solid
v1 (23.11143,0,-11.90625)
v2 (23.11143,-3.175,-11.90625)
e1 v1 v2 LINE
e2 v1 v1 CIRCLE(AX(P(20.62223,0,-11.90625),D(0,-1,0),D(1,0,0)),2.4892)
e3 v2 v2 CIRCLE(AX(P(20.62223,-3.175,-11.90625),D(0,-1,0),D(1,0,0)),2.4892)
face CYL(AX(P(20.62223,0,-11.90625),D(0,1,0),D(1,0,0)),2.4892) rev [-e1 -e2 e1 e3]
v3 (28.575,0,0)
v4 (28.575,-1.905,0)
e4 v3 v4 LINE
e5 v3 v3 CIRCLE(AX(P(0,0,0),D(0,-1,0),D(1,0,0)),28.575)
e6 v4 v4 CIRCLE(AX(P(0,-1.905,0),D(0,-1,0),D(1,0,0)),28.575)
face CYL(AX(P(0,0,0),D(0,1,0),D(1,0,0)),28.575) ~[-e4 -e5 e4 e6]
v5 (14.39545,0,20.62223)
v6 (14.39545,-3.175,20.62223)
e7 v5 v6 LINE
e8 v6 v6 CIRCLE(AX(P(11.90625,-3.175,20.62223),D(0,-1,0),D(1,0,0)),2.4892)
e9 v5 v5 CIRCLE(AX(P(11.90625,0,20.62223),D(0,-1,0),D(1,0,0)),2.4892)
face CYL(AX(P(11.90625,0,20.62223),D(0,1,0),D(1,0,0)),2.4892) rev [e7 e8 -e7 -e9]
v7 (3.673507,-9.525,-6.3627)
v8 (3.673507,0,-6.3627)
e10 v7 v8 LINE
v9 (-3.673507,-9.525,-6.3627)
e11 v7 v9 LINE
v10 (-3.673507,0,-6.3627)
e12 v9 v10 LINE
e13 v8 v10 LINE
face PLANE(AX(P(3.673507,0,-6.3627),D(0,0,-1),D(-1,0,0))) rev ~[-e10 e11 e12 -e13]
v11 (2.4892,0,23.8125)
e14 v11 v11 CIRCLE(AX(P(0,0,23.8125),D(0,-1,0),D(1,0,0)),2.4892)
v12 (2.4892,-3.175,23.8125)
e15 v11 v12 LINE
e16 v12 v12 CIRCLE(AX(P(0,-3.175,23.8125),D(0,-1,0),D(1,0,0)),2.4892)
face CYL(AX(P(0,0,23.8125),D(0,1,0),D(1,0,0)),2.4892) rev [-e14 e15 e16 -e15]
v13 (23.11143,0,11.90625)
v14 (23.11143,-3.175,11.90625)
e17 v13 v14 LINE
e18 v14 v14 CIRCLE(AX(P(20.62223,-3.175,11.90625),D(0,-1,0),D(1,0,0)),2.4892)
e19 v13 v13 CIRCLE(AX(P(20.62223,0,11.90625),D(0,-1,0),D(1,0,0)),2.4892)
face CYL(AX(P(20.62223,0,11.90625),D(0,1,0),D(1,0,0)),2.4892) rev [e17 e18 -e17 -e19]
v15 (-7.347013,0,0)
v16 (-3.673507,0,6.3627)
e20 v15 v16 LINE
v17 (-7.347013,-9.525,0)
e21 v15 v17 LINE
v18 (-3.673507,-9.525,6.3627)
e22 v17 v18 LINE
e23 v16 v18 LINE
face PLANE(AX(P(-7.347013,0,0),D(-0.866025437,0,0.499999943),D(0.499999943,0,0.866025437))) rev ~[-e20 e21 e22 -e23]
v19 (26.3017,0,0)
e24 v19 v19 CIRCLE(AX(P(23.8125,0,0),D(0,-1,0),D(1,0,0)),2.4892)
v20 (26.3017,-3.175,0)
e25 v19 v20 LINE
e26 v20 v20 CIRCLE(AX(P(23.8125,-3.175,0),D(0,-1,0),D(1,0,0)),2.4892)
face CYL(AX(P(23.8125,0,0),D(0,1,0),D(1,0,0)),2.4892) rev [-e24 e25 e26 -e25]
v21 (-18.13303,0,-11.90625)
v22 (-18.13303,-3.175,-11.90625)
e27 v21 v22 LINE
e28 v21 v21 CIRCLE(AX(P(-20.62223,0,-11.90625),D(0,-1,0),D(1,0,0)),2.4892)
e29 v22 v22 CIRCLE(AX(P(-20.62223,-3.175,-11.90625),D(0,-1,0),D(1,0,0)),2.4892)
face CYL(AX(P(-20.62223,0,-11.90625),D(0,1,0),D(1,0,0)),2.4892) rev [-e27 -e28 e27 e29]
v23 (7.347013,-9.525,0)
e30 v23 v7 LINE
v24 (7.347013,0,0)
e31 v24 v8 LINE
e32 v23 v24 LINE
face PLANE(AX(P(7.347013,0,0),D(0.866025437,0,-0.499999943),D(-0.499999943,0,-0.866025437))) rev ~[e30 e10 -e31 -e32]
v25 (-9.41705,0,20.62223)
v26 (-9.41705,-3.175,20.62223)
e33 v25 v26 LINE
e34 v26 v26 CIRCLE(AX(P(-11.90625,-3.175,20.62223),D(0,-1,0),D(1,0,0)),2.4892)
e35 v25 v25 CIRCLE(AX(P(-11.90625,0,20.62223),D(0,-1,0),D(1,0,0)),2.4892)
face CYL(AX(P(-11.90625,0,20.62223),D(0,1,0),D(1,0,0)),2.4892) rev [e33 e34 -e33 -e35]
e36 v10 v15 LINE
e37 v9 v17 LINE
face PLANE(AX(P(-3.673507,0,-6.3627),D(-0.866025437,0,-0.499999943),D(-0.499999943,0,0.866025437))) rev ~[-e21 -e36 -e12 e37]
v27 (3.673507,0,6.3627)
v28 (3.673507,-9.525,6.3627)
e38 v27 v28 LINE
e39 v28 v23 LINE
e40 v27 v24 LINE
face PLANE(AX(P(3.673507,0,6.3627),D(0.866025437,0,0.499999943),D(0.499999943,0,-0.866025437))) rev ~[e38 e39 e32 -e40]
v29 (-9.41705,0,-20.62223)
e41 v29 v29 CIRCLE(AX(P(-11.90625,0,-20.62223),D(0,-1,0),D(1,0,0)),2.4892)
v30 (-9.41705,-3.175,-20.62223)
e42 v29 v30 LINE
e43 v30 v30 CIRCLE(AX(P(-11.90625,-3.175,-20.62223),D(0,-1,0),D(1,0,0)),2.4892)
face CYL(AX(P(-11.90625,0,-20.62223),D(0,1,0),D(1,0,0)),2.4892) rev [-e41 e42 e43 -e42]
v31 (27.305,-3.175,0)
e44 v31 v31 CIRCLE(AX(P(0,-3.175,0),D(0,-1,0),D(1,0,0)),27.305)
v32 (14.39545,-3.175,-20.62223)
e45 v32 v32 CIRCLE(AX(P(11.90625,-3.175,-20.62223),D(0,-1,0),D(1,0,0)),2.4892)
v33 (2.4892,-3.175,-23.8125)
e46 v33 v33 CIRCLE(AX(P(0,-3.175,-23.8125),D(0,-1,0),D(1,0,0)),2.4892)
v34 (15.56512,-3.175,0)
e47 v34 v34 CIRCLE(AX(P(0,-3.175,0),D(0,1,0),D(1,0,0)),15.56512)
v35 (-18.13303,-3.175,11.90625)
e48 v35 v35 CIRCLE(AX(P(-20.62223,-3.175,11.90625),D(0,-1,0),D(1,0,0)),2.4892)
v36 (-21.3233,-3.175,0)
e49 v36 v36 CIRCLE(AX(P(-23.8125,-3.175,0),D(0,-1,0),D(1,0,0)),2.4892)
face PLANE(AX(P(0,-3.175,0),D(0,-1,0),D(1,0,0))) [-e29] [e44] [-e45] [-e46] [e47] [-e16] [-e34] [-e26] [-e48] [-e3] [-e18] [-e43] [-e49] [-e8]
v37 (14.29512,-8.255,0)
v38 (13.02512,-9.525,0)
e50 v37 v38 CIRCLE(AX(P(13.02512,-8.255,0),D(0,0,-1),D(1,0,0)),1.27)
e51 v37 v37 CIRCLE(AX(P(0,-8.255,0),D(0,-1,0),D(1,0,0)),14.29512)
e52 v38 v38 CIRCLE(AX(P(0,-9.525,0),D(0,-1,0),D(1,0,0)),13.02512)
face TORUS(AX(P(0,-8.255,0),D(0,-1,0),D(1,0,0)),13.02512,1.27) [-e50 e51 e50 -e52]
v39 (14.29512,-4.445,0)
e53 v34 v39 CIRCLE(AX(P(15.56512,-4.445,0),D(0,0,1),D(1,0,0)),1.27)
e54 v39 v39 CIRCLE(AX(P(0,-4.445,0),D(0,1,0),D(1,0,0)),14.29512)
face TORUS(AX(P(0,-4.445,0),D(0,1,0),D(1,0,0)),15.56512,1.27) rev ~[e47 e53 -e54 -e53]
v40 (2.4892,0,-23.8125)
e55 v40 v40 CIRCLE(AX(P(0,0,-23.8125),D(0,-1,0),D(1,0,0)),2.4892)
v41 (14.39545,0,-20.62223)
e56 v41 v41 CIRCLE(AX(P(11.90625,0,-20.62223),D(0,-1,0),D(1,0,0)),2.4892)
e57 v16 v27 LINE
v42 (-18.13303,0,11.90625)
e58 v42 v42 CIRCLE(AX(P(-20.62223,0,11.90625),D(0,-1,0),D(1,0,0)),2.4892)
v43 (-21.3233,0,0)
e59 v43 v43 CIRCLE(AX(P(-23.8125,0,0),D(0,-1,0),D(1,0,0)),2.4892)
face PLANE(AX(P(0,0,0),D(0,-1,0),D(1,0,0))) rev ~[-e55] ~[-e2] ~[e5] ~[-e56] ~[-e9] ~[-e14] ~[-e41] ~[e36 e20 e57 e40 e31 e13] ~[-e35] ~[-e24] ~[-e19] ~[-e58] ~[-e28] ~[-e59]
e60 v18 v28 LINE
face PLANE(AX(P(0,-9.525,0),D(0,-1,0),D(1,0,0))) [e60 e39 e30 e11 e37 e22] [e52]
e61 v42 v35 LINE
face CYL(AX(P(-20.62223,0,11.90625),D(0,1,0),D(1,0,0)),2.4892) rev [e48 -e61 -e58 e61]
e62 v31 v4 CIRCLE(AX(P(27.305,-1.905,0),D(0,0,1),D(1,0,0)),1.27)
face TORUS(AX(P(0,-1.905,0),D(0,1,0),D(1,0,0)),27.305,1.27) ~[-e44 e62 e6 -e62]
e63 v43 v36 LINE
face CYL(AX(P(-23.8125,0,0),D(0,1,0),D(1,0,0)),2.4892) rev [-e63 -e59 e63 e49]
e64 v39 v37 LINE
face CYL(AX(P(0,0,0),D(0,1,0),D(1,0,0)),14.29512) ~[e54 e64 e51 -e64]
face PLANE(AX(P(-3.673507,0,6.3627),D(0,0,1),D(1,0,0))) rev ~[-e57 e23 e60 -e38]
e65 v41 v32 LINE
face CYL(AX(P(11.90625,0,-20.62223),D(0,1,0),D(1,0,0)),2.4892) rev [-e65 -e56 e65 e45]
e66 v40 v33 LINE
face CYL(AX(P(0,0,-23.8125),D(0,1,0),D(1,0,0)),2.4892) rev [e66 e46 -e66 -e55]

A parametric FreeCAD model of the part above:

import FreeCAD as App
import Part
import Sketcher
from FreeCAD import Vector
Q = App.Units.Quantity


def edges_at(feature, points):
    """Names of the edges that pass closest to the given points."""
    edges = feature.Shape.Edges
    near = lambda p: min(range(len(edges)), key=lambda i: edges[i].distToShape(Part.Vertex(*p))[0])
    return sorted({f"Edge{near(p) + 1}" for p in points})

doc = App.newDocument("Part")
params = doc.addObject("Spreadsheet::Sheet", "Params")
for row, (alias, value) in enumerate([
    ("sketch1_diameter", "2.25 in"),
    ("sketch1_diameter2", "0.196 in"),
    ("pad1_length", "0.125 in"),
    ("pad2_length", "0.375 in"),
    ("fillet_radius", "0.05 in"),
], start=1):
    params.set(f"A{row}", alias)
    params.set(f"B{row}", "=" + value)
    params.setAlias(f"B{row}", alias)

body = doc.addObject("PartDesign::Body", "Body")

# Sketch on XZ plane
sketch1 = doc.addObject("Sketcher::SketchObject", "Sketch")
body.addObject(sketch1)
sketch1.AttachmentSupport = (doc.XZ_Plane, [""])
sketch1.MapMode = "FlatFace"
sketch1.addGeometry([
    Part.Circle(Vector(0, 0, 0), Vector(0, 0, 1), 28.575),  # 0
    Part.Circle(Vector(-11.90625, -20.62223, 0), Vector(0, 0, 1), 2.4892),  # 1
    Part.Circle(Vector(-20.62223, -11.90625, 0), Vector(0, 0, 1), 2.4892),  # 2
    Part.Circle(Vector(0, -23.8125, 0), Vector(0, 0, 1), 2.4892),  # 3
    Part.Circle(Vector(11.90625, -20.62223, 0), Vector(0, 0, 1), 2.4892),  # 4
    Part.Circle(Vector(20.62223, -11.90625, 0), Vector(0, 0, 1), 2.4892),  # 5
    Part.Circle(Vector(-23.8125, 0, 0), Vector(0, 0, 1), 2.4892),  # 6
    Part.Circle(Vector(-20.62223, 11.90625, 0), Vector(0, 0, 1), 2.4892),  # 7
    Part.Circle(Vector(-11.90625, 20.62223, 0), Vector(0, 0, 1), 2.4892),  # 8
    Part.LineSegment(Vector(-3.673507, -6.3627, 0), Vector(-7.347013, 0, 0)),  # 9
    Part.LineSegment(Vector(-7.347013, 0, 0), Vector(-3.673507, 6.3627, 0)),  # 10
    Part.LineSegment(Vector(-3.673507, 6.3627, 0), Vector(3.673507, 6.3627, 0)),  # 11
    Part.LineSegment(Vector(3.673507, 6.3627, 0), Vector(7.347013, 0, 0)),  # 12
    Part.LineSegment(Vector(7.347013, 0, 0), Vector(3.673507, -6.3627, 0)),  # 13
    Part.LineSegment(Vector(3.673507, -6.3627, 0), Vector(-3.673507, -6.3627, 0)),  # 14
    Part.Circle(Vector(23.8125, 0, 0), Vector(0, 0, 1), 2.4892),  # 15
    Part.Circle(Vector(20.62223, 11.90625, 0), Vector(0, 0, 1), 2.4892),  # 16
    Part.Circle(Vector(0, 23.8125, 0), Vector(0, 0, 1), 2.4892),  # 17
    Part.Circle(Vector(11.90625, 20.62223, 0), Vector(0, 0, 1), 2.4892),  # 18
], False)
sketch1.addConstraint([
    Sketcher.Constraint("Coincident", 9, 2, 10, 1),
    Sketcher.Constraint("Coincident", 10, 2, 11, 1),
    Sketcher.Constraint("Coincident", 11, 2, 12, 1),
    Sketcher.Constraint("Coincident", 12, 2, 13, 1),
    Sketcher.Constraint("Coincident", 13, 2, 14, 1),
    Sketcher.Constraint("Coincident", 14, 2, 9, 1),
    Sketcher.Constraint("Horizontal", 11),
    Sketcher.Constraint("Horizontal", 14),
    Sketcher.Constraint("Coincident", 0, 3, -1, 1),
    Sketcher.Constraint("Equal", 1, 2),
    Sketcher.Constraint("Equal", 2, 3),
    Sketcher.Constraint("Equal", 3, 4),
    Sketcher.Constraint("Equal", 4, 5),
    Sketcher.Constraint("Equal", 5, 6),
    Sketcher.Constraint("Equal", 6, 7),
    Sketcher.Constraint("Equal", 7, 8),
    Sketcher.Constraint("Equal", 8, 15),
    Sketcher.Constraint("Equal", 15, 16),
    Sketcher.Constraint("Equal", 16, 17),
    Sketcher.Constraint("Equal", 17, 18),
    Sketcher.Constraint("Symmetric", 5, 3, 7, 3, -1, 1),
    Sketcher.Constraint("Symmetric", 4, 3, 8, 3, -1, 1),
    Sketcher.Constraint("Symmetric", 6, 3, 15, 3, -1, 1),
    Sketcher.Constraint("Symmetric", 2, 3, 16, 3, -1, 1),
    Sketcher.Constraint("Symmetric", 3, 3, 17, 3, -1, 1),
    Sketcher.Constraint("Symmetric", 1, 3, 18, 3, -1, 1),
    Sketcher.Constraint("Symmetric", 9, 2, 12, 2, -1, 1),
    Sketcher.Constraint("Symmetric", 10, 2, 13, 2, -1, 1),
    Sketcher.Constraint("Symmetric", 1, 3, 4, 3, -2),
    Sketcher.Constraint("Symmetric", 2, 3, 5, 3, -2),
    Sketcher.Constraint("PointOnObject", 3, 3, -2),
    Sketcher.Constraint("PointOnObject", 6, 3, -1),
    Sketcher.Constraint("PointOnObject", 9, 2, -1),
    Sketcher.Constraint("Parallel", 9, 12),
    Sketcher.Constraint("Vertical", 11, 2, 13, 2),
    Sketcher.Constraint("Diameter", 0, Q("2.25 in")),
    Sketcher.Constraint("Diameter", 1, Q("0.196 in")),
    Sketcher.Constraint("Angle", 9, Q("119.999996 deg")),
    Sketcher.Constraint("DistanceX", 1, 3, -1, 1, Q("0.46875 in")),
    Sketcher.Constraint("DistanceY", 2, 3, -1, 1, Q("0.46875 in")),
    Sketcher.Constraint("DistanceY", 3, 3, -1, 1, Q("0.9375 in")),
    Sketcher.Constraint("DistanceX", 6, 3, -1, 1, Q("0.9375 in")),
    Sketcher.Constraint("DistanceY", 10, 2, 17, 3, Q("0.687 in")),
    Sketcher.Constraint("DistanceX", 11, 1, 11, 2, Q("7.347014 mm")),
    Sketcher.Constraint("DistanceY", 1, 3, -1, 1, Q("20.62223 mm")),
    Sketcher.Constraint("DistanceX", 2, 3, -1, 1, Q("20.62223 mm")),
])
sketch1.setExpression("Constraints[35]", "Params.sketch1_diameter")
sketch1.setExpression("Constraints[36]", "Params.sketch1_diameter2")
pad1 = doc.addObject("PartDesign::Pad", "Pad")
body.addObject(pad1)
pad1.Profile = sketch1
pad1.setExpression("Length", "Params.pad1_length")

# Sketch on XZ plane
sketch2 = doc.addObject("Sketcher::SketchObject", "Sketch001")
body.addObject(sketch2)
sketch2.AttachmentSupport = (doc.XZ_Plane, [""])
sketch2.MapMode = "FlatFace"
sketch2.addGeometry([
    Part.Circle(Vector(0, 0, 0), Vector(0, 0, 1), 14.29512),  # 0
    Part.LineSegment(Vector(-3.673507, -6.3627, 0), Vector(-7.347013, 0, 0)),  # 1
    Part.LineSegment(Vector(-7.347013, 0, 0), Vector(-3.673507, 6.3627, 0)),  # 2
    Part.LineSegment(Vector(-3.673507, 6.3627, 0), Vector(3.673507, 6.3627, 0)),  # 3
    Part.LineSegment(Vector(3.673507, 6.3627, 0), Vector(7.347013, 0, 0)),  # 4
    Part.LineSegment(Vector(7.347013, 0, 0), Vector(3.673507, -6.3627, 0)),  # 5
    Part.LineSegment(Vector(3.673507, -6.3627, 0), Vector(-3.673507, -6.3627, 0)),  # 6
], False)
sketch2.addConstraint([
    Sketcher.Constraint("Coincident", 1, 2, 2, 1),
    Sketcher.Constraint("Coincident", 2, 2, 3, 1),
    Sketcher.Constraint("Coincident", 3, 2, 4, 1),
    Sketcher.Constraint("Coincident", 4, 2, 5, 1),
    Sketcher.Constraint("Coincident", 5, 2, 6, 1),
    Sketcher.Constraint("Coincident", 6, 2, 1, 1),
    Sketcher.Constraint("Horizontal", 3),
    Sketcher.Constraint("Horizontal", 6),
    Sketcher.Constraint("Coincident", 0, 3, -1, 1),
    Sketcher.Constraint("Symmetric", 1, 2, 4, 2, -1, 1),
    Sketcher.Constraint("Symmetric", 2, 2, 5, 2, -1, 1),
    Sketcher.Constraint("PointOnObject", 1, 2, -1),
    Sketcher.Constraint("Parallel", 1, 4),
    Sketcher.Constraint("Vertical", 3, 2, 5, 2),
    Sketcher.Constraint("Angle", 1, Q("119.999996 deg")),
    Sketcher.Constraint("Diameter", 0, Q("1.1256 in")),
    Sketcher.Constraint("DistanceY", 5, 2, 3, 2, Q("0.501 in")),
    Sketcher.Constraint("DistanceX", 3, 1, 3, 2, Q("7.347014 mm")),
])
pad2 = doc.addObject("PartDesign::Pad", "Pad001")
body.addObject(pad2)
pad2.Profile = sketch2
pad2.setExpression("Length", "Params.pad2_length")
doc.recompute()

fillet = doc.addObject("PartDesign::Fillet", "Fillet")
body.addObject(fillet)
fillet.Base = (pad2, edges_at(pad2, [(-28.575, -3.175, 0), (-14.295, -9.525, 0), (-14.295, -3.175, 0)]))
fillet.setExpression("Radius", "Params.fillet_radius")

doc.recompute()
